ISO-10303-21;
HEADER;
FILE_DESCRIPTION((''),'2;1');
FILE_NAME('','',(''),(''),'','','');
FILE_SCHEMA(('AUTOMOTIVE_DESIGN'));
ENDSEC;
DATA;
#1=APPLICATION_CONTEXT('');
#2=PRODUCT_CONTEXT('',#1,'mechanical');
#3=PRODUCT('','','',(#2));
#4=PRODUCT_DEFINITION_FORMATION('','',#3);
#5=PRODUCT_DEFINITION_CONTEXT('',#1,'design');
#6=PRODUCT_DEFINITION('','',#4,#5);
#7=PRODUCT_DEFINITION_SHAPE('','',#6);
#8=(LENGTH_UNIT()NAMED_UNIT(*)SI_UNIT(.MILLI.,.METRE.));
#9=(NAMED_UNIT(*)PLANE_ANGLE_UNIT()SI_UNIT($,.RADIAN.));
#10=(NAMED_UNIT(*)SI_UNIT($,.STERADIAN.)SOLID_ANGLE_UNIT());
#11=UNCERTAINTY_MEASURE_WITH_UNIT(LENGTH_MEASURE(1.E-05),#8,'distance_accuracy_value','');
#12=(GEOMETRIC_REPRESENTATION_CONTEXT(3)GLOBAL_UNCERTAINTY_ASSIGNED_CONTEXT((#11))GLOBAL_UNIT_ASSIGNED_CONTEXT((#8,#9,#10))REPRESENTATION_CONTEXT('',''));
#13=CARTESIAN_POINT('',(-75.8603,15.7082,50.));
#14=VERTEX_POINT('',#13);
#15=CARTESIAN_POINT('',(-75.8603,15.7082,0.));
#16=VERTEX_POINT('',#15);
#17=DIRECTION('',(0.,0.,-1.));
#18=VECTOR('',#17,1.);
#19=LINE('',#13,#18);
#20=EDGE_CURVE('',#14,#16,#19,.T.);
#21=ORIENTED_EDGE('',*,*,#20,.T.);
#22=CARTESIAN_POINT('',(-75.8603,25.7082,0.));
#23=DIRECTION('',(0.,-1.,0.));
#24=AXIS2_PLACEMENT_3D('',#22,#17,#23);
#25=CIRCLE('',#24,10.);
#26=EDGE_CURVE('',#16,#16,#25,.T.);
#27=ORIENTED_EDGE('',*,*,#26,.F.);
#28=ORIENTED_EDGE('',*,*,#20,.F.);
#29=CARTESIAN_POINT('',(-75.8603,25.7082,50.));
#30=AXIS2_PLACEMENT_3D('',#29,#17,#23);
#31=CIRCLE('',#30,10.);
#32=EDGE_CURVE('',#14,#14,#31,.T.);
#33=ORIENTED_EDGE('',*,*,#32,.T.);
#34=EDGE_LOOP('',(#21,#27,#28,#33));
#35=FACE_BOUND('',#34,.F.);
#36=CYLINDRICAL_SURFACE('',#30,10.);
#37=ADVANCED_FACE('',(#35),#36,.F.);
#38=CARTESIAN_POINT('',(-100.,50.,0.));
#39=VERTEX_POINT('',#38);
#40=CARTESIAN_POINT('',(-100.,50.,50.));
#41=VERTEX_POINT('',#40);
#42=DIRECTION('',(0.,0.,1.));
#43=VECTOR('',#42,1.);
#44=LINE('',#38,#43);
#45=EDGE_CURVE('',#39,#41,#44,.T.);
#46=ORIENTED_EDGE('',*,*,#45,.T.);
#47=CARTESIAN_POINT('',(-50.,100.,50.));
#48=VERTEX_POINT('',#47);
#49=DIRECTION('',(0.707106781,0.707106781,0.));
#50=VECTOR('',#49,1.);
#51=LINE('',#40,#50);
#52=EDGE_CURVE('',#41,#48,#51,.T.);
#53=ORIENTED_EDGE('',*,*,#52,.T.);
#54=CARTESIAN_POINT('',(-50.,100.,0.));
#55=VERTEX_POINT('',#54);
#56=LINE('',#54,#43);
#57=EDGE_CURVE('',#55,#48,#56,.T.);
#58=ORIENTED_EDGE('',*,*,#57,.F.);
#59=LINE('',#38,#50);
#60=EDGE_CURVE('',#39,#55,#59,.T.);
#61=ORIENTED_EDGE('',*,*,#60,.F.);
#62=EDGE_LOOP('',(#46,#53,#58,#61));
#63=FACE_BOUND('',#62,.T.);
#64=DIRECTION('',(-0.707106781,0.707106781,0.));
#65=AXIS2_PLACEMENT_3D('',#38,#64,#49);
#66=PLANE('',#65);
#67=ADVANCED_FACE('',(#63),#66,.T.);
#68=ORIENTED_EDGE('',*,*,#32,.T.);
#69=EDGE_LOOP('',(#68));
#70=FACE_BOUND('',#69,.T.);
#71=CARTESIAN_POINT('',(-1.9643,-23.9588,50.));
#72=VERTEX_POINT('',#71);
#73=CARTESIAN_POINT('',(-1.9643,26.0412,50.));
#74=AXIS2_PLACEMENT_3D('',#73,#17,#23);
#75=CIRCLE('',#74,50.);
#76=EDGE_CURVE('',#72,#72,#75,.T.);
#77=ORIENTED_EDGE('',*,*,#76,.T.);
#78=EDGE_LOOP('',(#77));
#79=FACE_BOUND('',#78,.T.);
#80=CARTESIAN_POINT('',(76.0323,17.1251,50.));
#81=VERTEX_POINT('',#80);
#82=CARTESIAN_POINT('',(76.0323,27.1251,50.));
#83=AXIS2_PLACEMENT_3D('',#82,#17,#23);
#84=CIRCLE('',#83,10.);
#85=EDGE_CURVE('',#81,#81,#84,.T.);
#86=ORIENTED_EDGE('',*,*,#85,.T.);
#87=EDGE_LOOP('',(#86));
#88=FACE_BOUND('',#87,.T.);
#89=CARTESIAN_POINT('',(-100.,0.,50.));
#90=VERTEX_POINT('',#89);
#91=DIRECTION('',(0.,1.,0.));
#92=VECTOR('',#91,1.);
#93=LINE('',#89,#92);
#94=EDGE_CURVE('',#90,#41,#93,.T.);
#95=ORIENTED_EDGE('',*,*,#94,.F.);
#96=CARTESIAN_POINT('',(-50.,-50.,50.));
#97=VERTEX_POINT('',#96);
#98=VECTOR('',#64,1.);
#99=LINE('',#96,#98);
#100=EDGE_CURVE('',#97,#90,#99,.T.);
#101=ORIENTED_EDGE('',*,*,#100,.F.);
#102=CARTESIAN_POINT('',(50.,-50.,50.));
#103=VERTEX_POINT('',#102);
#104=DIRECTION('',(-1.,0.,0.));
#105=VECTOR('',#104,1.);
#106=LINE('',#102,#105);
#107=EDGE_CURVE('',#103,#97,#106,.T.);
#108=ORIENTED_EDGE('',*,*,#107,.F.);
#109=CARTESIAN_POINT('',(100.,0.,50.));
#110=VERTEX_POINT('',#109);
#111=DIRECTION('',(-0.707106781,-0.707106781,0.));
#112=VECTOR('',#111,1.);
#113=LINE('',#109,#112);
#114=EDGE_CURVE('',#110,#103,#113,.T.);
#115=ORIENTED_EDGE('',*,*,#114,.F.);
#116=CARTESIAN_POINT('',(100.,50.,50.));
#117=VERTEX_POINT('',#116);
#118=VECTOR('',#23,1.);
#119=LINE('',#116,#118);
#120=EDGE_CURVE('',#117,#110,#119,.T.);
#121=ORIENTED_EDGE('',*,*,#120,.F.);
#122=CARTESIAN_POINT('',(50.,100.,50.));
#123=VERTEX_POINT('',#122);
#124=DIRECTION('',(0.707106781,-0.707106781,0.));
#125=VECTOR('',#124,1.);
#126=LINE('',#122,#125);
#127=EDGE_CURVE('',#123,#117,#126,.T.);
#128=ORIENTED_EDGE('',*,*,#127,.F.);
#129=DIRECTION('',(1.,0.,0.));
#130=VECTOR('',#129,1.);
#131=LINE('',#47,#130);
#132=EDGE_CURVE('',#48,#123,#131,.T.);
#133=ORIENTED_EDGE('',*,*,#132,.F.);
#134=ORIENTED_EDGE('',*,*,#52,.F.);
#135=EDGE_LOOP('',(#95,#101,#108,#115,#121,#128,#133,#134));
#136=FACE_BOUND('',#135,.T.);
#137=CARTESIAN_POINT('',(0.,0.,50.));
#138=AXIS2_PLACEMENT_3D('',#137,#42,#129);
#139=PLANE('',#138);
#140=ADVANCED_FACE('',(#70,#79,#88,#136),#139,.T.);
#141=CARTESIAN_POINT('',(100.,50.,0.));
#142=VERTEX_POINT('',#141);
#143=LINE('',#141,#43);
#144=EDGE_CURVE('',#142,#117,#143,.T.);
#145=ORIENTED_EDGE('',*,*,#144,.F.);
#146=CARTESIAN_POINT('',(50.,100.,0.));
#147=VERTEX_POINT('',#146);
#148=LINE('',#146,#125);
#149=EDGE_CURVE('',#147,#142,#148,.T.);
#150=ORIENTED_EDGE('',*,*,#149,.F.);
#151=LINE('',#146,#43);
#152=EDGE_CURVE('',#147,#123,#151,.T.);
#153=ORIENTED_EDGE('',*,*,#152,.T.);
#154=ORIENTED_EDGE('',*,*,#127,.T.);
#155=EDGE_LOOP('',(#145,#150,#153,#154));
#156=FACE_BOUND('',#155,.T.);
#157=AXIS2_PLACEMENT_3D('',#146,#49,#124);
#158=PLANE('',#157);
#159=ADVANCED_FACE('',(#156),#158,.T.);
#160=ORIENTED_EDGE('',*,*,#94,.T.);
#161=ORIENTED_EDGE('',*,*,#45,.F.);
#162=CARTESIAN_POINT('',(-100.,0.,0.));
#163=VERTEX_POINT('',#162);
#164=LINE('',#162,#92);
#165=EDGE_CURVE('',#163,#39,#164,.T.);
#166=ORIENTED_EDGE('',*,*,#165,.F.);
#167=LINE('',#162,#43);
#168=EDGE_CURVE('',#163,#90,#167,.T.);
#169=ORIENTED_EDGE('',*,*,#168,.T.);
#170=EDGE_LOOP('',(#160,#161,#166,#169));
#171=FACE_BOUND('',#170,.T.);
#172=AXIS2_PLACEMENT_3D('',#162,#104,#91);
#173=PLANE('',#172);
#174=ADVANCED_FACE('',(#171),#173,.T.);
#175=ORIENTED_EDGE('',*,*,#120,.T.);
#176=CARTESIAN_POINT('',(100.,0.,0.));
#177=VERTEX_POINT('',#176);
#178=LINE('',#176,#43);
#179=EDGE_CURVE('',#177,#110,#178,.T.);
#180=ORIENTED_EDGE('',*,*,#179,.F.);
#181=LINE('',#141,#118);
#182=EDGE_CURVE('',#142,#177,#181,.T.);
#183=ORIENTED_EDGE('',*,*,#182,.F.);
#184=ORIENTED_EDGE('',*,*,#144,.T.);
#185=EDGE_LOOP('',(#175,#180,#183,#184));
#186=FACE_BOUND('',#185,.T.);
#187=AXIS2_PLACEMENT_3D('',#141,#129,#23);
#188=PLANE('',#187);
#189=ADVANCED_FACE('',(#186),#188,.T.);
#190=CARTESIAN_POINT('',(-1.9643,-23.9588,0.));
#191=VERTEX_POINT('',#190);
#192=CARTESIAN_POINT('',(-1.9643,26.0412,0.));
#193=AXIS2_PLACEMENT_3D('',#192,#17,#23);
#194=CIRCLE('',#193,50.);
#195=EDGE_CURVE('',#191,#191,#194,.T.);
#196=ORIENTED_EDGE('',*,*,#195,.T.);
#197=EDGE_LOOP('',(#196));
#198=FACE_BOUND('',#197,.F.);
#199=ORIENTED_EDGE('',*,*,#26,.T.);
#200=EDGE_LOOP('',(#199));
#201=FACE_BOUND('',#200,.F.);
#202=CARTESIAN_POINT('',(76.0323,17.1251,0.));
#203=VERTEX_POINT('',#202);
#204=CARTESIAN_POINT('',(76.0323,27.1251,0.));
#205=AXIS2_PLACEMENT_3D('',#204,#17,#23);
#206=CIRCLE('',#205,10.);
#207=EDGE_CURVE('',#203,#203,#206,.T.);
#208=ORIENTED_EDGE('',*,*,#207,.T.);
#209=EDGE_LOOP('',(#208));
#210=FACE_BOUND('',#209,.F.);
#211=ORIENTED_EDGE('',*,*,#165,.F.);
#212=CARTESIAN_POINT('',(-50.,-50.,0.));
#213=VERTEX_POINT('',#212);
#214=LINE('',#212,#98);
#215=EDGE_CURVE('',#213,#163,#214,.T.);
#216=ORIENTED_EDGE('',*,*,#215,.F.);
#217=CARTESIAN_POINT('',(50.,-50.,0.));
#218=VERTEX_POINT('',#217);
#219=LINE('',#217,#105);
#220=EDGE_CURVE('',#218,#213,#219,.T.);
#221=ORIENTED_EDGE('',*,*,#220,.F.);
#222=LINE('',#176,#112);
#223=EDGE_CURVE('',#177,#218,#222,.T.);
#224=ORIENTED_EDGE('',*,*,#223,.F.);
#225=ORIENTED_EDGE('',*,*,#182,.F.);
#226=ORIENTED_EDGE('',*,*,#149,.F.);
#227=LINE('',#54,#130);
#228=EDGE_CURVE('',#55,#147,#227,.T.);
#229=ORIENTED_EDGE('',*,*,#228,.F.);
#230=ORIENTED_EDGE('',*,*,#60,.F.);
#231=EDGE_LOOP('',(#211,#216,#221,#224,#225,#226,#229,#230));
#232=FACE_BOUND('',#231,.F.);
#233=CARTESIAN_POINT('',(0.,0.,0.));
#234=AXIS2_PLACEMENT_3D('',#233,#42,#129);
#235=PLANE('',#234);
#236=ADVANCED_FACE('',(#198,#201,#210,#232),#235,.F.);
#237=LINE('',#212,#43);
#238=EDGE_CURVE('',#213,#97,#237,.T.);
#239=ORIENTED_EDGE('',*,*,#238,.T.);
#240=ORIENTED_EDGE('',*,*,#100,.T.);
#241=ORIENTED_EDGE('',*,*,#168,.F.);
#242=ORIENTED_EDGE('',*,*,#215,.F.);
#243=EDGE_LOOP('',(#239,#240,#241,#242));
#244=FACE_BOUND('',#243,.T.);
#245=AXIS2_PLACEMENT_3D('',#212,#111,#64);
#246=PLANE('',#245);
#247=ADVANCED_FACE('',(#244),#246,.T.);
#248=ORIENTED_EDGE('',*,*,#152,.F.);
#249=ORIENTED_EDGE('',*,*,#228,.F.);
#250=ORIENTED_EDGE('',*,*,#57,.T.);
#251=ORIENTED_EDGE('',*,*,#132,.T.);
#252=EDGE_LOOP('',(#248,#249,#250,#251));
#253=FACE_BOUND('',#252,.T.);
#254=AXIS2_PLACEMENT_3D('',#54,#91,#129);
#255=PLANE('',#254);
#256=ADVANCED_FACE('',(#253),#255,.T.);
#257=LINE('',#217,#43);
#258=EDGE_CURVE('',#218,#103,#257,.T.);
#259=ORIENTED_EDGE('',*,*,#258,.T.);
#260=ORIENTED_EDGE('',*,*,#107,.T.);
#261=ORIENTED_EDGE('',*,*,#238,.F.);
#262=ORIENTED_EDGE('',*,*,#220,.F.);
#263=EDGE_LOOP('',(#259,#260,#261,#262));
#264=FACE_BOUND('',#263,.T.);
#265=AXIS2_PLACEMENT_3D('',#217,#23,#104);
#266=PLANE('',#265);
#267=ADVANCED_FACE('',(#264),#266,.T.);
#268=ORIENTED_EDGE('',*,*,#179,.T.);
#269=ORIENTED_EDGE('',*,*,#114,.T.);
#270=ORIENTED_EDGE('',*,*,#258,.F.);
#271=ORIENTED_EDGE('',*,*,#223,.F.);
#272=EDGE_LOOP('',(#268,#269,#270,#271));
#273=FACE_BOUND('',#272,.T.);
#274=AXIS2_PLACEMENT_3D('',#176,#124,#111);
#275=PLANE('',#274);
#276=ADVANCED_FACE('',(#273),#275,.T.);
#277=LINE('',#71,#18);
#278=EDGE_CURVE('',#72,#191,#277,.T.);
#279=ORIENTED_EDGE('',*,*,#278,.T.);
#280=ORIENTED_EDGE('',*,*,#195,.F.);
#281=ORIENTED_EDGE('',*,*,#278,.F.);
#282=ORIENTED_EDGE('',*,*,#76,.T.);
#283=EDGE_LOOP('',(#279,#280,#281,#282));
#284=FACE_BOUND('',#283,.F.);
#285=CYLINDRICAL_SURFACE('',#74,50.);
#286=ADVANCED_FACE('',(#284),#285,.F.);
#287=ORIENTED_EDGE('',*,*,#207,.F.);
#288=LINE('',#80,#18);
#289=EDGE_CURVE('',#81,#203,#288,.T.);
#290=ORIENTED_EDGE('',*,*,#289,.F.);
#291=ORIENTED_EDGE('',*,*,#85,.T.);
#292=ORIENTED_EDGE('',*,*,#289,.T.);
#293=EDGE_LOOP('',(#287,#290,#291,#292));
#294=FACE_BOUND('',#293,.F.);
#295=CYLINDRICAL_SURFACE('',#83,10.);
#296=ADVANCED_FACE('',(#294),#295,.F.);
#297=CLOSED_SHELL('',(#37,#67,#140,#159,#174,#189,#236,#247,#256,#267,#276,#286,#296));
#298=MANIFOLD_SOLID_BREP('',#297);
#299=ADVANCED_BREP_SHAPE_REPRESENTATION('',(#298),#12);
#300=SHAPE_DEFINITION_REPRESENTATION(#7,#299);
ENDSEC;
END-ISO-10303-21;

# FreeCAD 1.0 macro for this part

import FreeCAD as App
import Part
import Sketcher

V = App.Vector
Q = App.Units.Quantity

doc = App.newDocument("Part")
params = doc.addObject("Spreadsheet::Sheet", "Params")
for row, (alias, value) in enumerate([
    ("sketch1_width", "3.937 in"),
    ("pad1_length", "1.9685039 in"),
    ("sketch2_diameter", "3.937 in"),
    ("hole_diameter", "3.9370079 in"),
    ("hole_depth", "2.3622047 in"),
    ("hole2_diameter", "0.7874016 in"),
    ("hole2_depth", "2.3622047 in"),
    ("hole3_diameter", "0.7874016 in"),
    ("hole3_depth", "2.3622047 in"),
], start=1):
    params.set(f"A{row}", alias)
    params.set(f"B{row}", "=" + value)
    params.setAlias(f"B{row}", alias)

body = doc.addObject("PartDesign::Body", "Body")

# Sketch on XY plane
sketch1 = doc.addObject("Sketcher::SketchObject", "Sketch")
body.addObject(sketch1)
sketch1.AttachmentSupport = (doc.XY_Plane, [""])
sketch1.MapMode = "FlatFace"
sketch1.addGeometry(Part.LineSegment(V(50, 100, 0), V(-50, 100, 0)), False)
sketch1.addGeometry(Part.LineSegment(V(-50, 100, 0), V(-100, 50, 0)), False)
sketch1.addGeometry(Part.LineSegment(V(-100, 50, 0), V(-100, 0, 0)), False)
sketch1.addGeometry(Part.LineSegment(V(-100, 0, 0), V(-50, -50, 0)), False)
sketch1.addGeometry(Part.LineSegment(V(-50, -50, 0), V(50, -50, 0)), False)
sketch1.addGeometry(Part.LineSegment(V(50, -50, 0), V(100, 0, 0)), False)
sketch1.addGeometry(Part.LineSegment(V(100, 0, 0), V(100, 50, 0)), False)
sketch1.addGeometry(Part.LineSegment(V(100, 50, 0), V(50, 100, 0)), False)
sketch1.addConstraint(Sketcher.Constraint("Coincident", 0, 2, 1, 1))
sketch1.addConstraint(Sketcher.Constraint("Coincident", 1, 2, 2, 1))
sketch1.addConstraint(Sketcher.Constraint("Coincident", 2, 2, 3, 1))
sketch1.addConstraint(Sketcher.Constraint("Coincident", 3, 2, 4, 1))
sketch1.addConstraint(Sketcher.Constraint("Coincident", 4, 2, 5, 1))
sketch1.addConstraint(Sketcher.Constraint("Coincident", 5, 2, 6, 1))
sketch1.addConstraint(Sketcher.Constraint("Coincident", 6, 2, 7, 1))
sketch1.addConstraint(Sketcher.Constraint("Coincident", 7, 2, 0, 1))
sketch1.addConstraint(Sketcher.Constraint("Horizontal", 0))
sketch1.addConstraint(Sketcher.Constraint("Vertical", 2))
sketch1.addConstraint(Sketcher.Constraint("Horizontal", 4))
sketch1.addConstraint(Sketcher.Constraint("Vertical", 6))
sketch1.addConstraint(Sketcher.Constraint("Symmetric", 2, 2, 5, 2, -1, 1))
sketch1.addConstraint(Sketcher.Constraint("PointOnObject", 2, 2, -1))
sketch1.addConstraint(Sketcher.Constraint("Perpendicular", 1, 3))
sketch1.addConstraint(Sketcher.Constraint("Perpendicular", 3, 5))
sketch1.addConstraint(Sketcher.Constraint("Perpendicular", 5, 7))
sketch1.addConstraint(Sketcher.Constraint("Horizontal", 1, 2, 6, 2))
sketch1.addConstraint(Sketcher.Constraint("Vertical", 0, 2, 3, 2))
sketch1.addConstraint(Sketcher.Constraint("Vertical", 4, 2, 7, 2))
sketch1.addConstraint(Sketcher.Constraint("DistanceX", 0, 2, 0, 1, Q("3.937 in")))
sketch1.addConstraint(Sketcher.Constraint("DistanceY", 2, 2, 2, 1, Q("1.9685 in")))
sketch1.addConstraint(Sketcher.Constraint("DistanceY", -1, 1, 0, 2, Q("3.937 in")))
sketch1.setExpression("Constraints[20]", "Params.sketch1_width")
pad1 = doc.addObject("PartDesign::Pad", "Pad")
body.addObject(pad1)
pad1.Profile = sketch1
pad1.setExpression("Length", "Params.pad1_length")

# Sketch on XY plane
sketch2 = doc.addObject("Sketcher::SketchObject", "Sketch001")
body.addObject(sketch2)
sketch2.AttachmentSupport = (doc.XY_Plane, [""])
sketch2.MapMode = "FlatFace"
sketch2.AttachmentOffset = App.Placement(V(0, 0, 1.9685039 * 25.4), App.Rotation())
sketch2.addGeometry(Part.Circle(V(-2, 26, 0), V(0, 0, 1), 50), False)
sketch2.addConstraint(Sketcher.Constraint("Diameter", 0, Q("3.937 in")))
sketch2.addConstraint(Sketcher.Constraint("DistanceX", 0, 3, -1, 1, Q("1.9643 mm")))
sketch2.addConstraint(Sketcher.Constraint("DistanceY", -1, 1, 0, 3, Q("26.0412 mm")))
sketch2.setExpression("Constraints[0]", "Params.sketch2_diameter")
doc.recompute()
hole = doc.addObject("PartDesign::Hole", "Hole")
body.addObject(hole)
hole.Profile = sketch2
hole.ThreadType = "None"
hole.setExpression("Diameter", "Params.hole_diameter")
hole.DepthType = "Dimension"
hole.setExpression("Depth", "Params.hole_depth")
hole.DrillPoint = "Angled"
hole.DrillPointAngle = 118

# Sketch on XY plane
sketch3 = doc.addObject("Sketcher::SketchObject", "Sketch002")
body.addObject(sketch3)
sketch3.AttachmentSupport = (doc.XY_Plane, [""])
sketch3.MapMode = "FlatFace"
sketch3.AttachmentOffset = App.Placement(V(0, 0, 1.9685039 * 25.4), App.Rotation())
sketch3.addGeometry(Part.Circle(V(76, 27, 0), V(0, 0, 1), 10), False)
sketch3.addConstraint(Sketcher.Constraint("Diameter", 0, Q("0.7874 in")))
sketch3.addConstraint(Sketcher.Constraint("DistanceX", -1, 1, 0, 3, Q("2.9934 in")))
sketch3.addConstraint(Sketcher.Constraint("DistanceY", -1, 1, 0, 3, Q("27.125 mm")))
doc.recompute()
hole2 = doc.addObject("PartDesign::Hole", "Hole001")
body.addObject(hole2)
hole2.Profile = sketch3
hole2.ThreadType = "None"
hole2.setExpression("Diameter", "Params.hole2_diameter")
hole2.DepthType = "Dimension"
hole2.setExpression("Depth", "Params.hole2_depth")
hole2.DrillPoint = "Angled"
hole2.DrillPointAngle = 118

# Sketch on XY plane
sketch4 = doc.addObject("Sketcher::SketchObject", "Sketch003")
body.addObject(sketch4)
sketch4.AttachmentSupport = (doc.XY_Plane, [""])
sketch4.MapMode = "FlatFace"
sketch4.AttachmentOffset = App.Placement(V(0, 0, 1.9685039 * 25.4), App.Rotation())
sketch4.addGeometry(Part.Circle(V(-76, 26, 0), V(0, 0, 1), 10), False)
sketch4.addConstraint(Sketcher.Constraint("Diameter", 0, Q("0.7874 in")))
sketch4.addConstraint(Sketcher.Constraint("DistanceX", 0, 3, -1, 1, Q("75.8603 mm")))
sketch4.addConstraint(Sketcher.Constraint("DistanceY", -1, 1, 0, 3, Q("25.7082 mm")))
doc.recompute()
hole3 = doc.addObject("PartDesign::Hole", "Hole002")
body.addObject(hole3)
hole3.Profile = sketch4
hole3.ThreadType = "None"
hole3.setExpression("Diameter", "Params.hole3_diameter")
hole3.DepthType = "Dimension"
hole3.setExpression("Depth", "Params.hole3_depth")
hole3.DrillPoint = "Angled"
hole3.DrillPointAngle = 118

doc.recompute()
